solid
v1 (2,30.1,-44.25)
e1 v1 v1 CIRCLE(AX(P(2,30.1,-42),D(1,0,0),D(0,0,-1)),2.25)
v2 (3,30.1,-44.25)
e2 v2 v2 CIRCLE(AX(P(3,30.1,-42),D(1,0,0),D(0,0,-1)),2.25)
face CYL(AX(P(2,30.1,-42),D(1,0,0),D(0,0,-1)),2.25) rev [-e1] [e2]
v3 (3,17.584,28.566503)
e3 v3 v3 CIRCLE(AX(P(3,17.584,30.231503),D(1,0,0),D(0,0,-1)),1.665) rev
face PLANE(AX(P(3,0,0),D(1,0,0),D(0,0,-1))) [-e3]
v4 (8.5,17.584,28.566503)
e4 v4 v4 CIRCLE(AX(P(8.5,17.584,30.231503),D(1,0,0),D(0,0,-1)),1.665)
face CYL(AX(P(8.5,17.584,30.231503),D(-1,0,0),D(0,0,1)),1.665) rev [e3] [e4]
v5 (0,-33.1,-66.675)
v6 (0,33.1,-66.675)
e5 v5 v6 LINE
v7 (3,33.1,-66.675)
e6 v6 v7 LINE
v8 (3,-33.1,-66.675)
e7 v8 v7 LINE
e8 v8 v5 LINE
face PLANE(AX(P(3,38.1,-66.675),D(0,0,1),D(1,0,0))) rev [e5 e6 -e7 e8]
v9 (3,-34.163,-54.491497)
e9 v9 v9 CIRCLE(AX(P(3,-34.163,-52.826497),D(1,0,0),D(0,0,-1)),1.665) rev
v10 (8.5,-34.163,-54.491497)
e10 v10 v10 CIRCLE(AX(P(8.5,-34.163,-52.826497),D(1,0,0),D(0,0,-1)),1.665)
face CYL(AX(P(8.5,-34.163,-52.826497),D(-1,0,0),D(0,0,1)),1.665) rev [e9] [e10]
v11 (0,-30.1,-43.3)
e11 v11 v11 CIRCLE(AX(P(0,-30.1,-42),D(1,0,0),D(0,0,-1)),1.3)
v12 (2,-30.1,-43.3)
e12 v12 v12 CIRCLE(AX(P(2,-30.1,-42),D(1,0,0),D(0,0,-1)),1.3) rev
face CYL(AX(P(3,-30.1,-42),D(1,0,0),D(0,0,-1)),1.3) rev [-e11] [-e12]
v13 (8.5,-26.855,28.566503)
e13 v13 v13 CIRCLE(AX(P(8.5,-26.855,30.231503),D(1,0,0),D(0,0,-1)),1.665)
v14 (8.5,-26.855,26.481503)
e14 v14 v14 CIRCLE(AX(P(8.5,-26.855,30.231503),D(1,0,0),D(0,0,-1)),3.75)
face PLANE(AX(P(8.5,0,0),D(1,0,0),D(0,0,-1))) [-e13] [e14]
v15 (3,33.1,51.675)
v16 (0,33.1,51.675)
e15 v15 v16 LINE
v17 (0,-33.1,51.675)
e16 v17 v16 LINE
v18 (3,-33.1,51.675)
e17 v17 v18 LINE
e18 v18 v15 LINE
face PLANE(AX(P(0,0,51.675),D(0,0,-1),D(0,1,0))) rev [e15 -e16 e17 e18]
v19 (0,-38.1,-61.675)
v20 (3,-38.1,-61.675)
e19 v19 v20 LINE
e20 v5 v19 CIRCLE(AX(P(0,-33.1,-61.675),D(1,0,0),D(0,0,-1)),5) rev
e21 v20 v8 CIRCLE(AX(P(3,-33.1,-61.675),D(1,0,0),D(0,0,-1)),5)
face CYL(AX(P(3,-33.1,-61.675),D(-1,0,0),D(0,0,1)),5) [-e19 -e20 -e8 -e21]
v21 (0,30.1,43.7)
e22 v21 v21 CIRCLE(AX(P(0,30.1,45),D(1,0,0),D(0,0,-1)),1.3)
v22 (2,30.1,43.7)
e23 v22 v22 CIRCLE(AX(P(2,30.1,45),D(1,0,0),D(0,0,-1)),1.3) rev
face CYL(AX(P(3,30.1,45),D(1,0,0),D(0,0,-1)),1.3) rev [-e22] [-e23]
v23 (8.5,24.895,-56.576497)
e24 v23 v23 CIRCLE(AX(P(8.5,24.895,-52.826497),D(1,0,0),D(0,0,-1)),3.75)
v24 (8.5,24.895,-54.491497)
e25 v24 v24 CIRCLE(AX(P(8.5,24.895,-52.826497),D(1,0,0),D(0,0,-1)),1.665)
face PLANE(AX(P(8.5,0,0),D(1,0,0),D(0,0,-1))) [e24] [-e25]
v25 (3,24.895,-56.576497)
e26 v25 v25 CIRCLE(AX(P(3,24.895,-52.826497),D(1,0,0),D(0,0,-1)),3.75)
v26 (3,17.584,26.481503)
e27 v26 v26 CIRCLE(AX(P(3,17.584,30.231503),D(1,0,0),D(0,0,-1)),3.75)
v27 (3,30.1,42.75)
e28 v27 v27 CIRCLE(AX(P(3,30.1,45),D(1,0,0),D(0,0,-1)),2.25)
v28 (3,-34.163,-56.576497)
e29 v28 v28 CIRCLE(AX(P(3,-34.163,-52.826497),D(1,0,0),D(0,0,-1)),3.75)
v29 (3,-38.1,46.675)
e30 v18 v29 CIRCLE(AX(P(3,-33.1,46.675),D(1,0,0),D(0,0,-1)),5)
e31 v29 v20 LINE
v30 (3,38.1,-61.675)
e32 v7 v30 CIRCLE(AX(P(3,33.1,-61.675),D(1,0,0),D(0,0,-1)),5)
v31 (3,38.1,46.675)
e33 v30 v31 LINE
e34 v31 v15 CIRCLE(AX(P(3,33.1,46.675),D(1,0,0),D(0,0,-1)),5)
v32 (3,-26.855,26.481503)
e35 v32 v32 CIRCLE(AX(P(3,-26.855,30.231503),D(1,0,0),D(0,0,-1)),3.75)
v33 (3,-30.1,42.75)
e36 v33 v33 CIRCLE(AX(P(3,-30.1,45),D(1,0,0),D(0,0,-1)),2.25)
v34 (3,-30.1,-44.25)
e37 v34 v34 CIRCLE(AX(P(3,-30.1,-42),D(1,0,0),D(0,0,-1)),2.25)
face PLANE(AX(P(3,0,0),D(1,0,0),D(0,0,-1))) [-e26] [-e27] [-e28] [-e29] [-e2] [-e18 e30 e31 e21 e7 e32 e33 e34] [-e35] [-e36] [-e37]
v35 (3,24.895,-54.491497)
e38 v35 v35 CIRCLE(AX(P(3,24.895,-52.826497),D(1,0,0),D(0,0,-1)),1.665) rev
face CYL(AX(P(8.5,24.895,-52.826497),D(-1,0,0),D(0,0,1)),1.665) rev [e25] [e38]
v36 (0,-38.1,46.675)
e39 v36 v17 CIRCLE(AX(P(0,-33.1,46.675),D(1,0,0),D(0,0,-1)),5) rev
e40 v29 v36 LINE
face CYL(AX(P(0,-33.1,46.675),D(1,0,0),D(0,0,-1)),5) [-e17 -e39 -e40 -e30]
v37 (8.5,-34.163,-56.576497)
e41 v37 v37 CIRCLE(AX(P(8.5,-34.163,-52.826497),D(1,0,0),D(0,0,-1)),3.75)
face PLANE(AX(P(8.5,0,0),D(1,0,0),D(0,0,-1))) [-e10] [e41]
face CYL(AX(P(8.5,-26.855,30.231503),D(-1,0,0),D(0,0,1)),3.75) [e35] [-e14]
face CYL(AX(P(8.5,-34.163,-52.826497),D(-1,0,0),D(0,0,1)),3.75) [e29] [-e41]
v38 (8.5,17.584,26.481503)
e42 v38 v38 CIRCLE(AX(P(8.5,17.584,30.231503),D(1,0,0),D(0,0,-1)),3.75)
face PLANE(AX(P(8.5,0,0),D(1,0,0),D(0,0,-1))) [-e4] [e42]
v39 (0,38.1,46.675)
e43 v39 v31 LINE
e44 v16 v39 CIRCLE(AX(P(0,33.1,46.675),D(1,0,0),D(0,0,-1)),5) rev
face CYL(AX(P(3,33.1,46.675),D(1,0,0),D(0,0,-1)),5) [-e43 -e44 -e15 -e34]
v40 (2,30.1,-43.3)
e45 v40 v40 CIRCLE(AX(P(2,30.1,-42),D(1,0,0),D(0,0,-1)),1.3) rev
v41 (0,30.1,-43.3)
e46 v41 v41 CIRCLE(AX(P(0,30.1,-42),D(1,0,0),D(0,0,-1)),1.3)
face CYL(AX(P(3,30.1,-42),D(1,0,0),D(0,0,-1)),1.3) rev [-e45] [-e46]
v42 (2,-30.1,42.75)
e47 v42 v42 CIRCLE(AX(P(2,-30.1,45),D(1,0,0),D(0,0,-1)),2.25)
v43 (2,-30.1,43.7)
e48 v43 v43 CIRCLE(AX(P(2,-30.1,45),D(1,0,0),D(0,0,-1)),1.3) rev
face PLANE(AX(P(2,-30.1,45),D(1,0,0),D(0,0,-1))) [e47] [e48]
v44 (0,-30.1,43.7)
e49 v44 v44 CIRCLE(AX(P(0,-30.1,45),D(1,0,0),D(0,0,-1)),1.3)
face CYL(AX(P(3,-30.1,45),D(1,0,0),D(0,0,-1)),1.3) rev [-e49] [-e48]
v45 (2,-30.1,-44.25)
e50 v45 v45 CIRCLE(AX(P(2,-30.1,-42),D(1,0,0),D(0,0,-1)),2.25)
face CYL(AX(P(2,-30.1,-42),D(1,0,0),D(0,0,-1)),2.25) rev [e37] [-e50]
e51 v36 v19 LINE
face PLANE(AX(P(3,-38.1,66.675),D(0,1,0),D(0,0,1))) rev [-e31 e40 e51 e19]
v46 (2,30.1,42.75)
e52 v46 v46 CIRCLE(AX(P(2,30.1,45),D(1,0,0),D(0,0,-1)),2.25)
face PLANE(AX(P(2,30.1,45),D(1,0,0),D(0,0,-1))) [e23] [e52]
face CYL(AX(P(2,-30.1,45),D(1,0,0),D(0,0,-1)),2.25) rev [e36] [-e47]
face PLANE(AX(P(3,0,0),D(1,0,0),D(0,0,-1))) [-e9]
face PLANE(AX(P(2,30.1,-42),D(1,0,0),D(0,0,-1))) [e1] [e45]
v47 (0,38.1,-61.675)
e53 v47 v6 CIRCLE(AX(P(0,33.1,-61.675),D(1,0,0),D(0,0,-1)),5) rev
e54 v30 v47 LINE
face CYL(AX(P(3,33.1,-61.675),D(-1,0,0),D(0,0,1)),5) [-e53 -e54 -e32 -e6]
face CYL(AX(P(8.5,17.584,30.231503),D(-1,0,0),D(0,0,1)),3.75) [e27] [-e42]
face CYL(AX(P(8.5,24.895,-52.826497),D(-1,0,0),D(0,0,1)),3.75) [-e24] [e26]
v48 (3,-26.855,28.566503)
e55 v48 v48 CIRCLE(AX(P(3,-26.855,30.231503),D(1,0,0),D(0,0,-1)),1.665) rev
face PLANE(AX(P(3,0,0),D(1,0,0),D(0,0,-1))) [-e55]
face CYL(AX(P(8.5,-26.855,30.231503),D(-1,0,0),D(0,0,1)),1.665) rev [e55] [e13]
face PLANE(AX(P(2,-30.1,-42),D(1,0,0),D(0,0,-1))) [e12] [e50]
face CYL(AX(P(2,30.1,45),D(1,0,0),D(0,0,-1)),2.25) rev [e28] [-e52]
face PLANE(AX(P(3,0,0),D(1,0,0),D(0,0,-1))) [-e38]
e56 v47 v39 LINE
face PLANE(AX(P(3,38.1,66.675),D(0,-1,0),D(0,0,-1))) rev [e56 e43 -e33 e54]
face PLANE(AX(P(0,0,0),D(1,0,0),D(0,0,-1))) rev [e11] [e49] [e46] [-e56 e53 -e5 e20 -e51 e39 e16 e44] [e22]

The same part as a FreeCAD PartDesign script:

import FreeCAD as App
import Part
import Sketcher

V = App.Vector


def edges_at(feature, points):
    """Names of the edges that pass closest to the given points."""
    edges = feature.Shape.Edges
    near = lambda p: min(range(len(edges)), key=lambda i: edges[i].distToShape(Part.Vertex(*p))[0])
    return sorted({f"Edge{near(p) + 1}" for p in points})


def add_polygon(sketch, points):
    """Adds a closed chain of lines whose ends are joined by coincident constraints."""
    first, n = sketch.GeometryCount, len(points)
    for a, b in zip(points, points[1:] + points[:1]):
        sketch.addGeometry(Part.LineSegment(App.Vector(*a, 0), App.Vector(*b, 0)), False)
    for i in range(n):
        sketch.addConstraint(Sketcher.Constraint("Coincident", first + i, 2, first + (i + 1) % n, 1))

doc = App.newDocument("Part")
body = doc.addObject("PartDesign::Body", "Body")

# Sketch on YZ plane
sketch1 = body.newObject("Sketcher::SketchObject", "Sketch")
sketch1.AttachmentSupport = (doc.getObject("YZ_Plane"), [""])
sketch1.MapMode = "FlatFace"
add_polygon(sketch1, [(38, 67), (-38, 67), (-38, -67), (38, -67)])  # lines 0-3
sketch1.addConstraint([
    Sketcher.Constraint("Horizontal", 0),
    Sketcher.Constraint("Vertical", 1),
    Sketcher.Constraint("Horizontal", 2),
    Sketcher.Constraint("Vertical", 3),
    Sketcher.Constraint("Symmetric", 0, 2, 2, 2, -1, 1),
    Sketcher.Constraint("DistanceX", 0, 2, 0, 1, 76.2),
    Sketcher.Constraint("DistanceY", 1, 2, 1, 1, 133.35),
])
pad1 = body.newObject("PartDesign::Pad", "Pad")
pad1.Profile = sketch1
pad1.Length = 3

# Sketch on YZ plane
sketch2 = body.newObject("Sketcher::SketchObject", "Sketch001")
sketch2.AttachmentSupport = (doc.getObject("YZ_Plane"), [""])
sketch2.MapMode = "FlatFace"
sketch2.AttachmentOffset = App.Placement(V(0, 0, 3), App.Rotation())
sketch2.addGeometry([
    Part.Circle(V(-30.1, 45, 0), V(0, 0, 1), 1.3),
    Part.Circle(V(30.1, 45, 0), V(0, 0, 1), 1.3),
    Part.Circle(V(30.1, -42, 0), V(0, 0, 1), 1.3),
    Part.Circle(V(-30.1, -42, 0), V(0, 0, 1), 1.3),
], False)
sketch2.addConstraint([
    Sketcher.Constraint("Equal", 0, 1),
    Sketcher.Constraint("Equal", 1, 2),
    Sketcher.Constraint("Equal", 2, 3),
    Sketcher.Constraint("Symmetric", 0, 3, 1, 3, -2),
    Sketcher.Constraint("Symmetric", 2, 3, 3, 3, -2),
    Sketcher.Constraint("Vertical", 1, 3, 2, 3),
    Sketcher.Constraint("Diameter", 0, 2.6),
    Sketcher.Constraint("DistanceY", -1, 1, 0, 3, 45.0),
    Sketcher.Constraint("DistanceY", 2, 3, -1, 1, 42.0),
    Sketcher.Constraint("DistanceX", 0, 3, -1, 1, 30.1),
])
doc.recompute()
hole = body.newObject("PartDesign::Hole", "Hole")
hole.Profile = sketch2
hole.ThreadType = "None"
hole.Diameter = 2.6
hole.DepthType = "ThroughAll"

# Sketch on YZ plane
sketch3 = body.newObject("Sketcher::SketchObject", "Sketch002")
sketch3.AttachmentSupport = (doc.getObject("YZ_Plane"), [""])
sketch3.MapMode = "FlatFace"
sketch3.AttachmentOffset = App.Placement(V(0, 0, 3), App.Rotation())
sketch3.addGeometry([
    Part.Circle(V(-26.9, 30.2, 0), V(0, 0, 1), 3.8),  # 0
    Part.Circle(V(-26.9, 30.2, 0), V(0, 0, 1), 1.7),  # 1
    Part.Circle(V(17.6, 30.2, 0), V(0, 0, 1), 3.8),  # 2
    Part.Circle(V(17.6, 30.2, 0), V(0, 0, 1), 1.7),  # 3
    Part.Circle(V(24.9, -52.8, 0), V(0, 0, 1), 3.8),  # 4
    Part.Circle(V(24.9, -52.8, 0), V(0, 0, 1), 1.7),  # 5
    Part.Circle(V(-34.2, -52.8, 0), V(0, 0, 1), 3.8),  # 6
    Part.Circle(V(-34.2, -52.8, 0), V(0, 0, 1), 1.7),  # 7
], False)
sketch3.addConstraint([
    Sketcher.Constraint("Coincident", 1, 3, 0, 3),
    Sketcher.Constraint("Coincident", 3, 3, 2, 3),
    Sketcher.Constraint("Coincident", 5, 3, 4, 3),
    Sketcher.Constraint("Coincident", 7, 3, 6, 3),
    Sketcher.Constraint("Equal", 0, 2),
    Sketcher.Constraint("Equal", 1, 3),
    Sketcher.Constraint("Equal", 2, 4),
    Sketcher.Constraint("Equal", 3, 5),
    Sketcher.Constraint("Equal", 4, 6),
    Sketcher.Constraint("Equal", 5, 7),
    Sketcher.Constraint("Horizontal", 1, 3, 2, 3),
    Sketcher.Constraint("Horizontal", 5, 3, 6, 3),
    Sketcher.Constraint("Diameter", 0, 7.5),
    Sketcher.Constraint("Diameter", 1, 3.33),
    Sketcher.Constraint("DistanceX", 0, 3, 4, 3, 51.75),
    Sketcher.Constraint("DistanceX", 0, 3, -1, 1, 26.855),
    Sketcher.Constraint("DistanceX", -1, 1, 2, 3, 17.584),
    Sketcher.Constraint("DistanceX", 6, 3, -1, 1, 34.163),
    Sketcher.Constraint("DistanceY", 4, 3, 2, 3, 83.058),
    Sketcher.Constraint("DistanceY", -1, 1, 0, 3, 30.231503),
])
pad2 = body.newObject("PartDesign::Pad", "Pad001")
pad2.Profile = sketch3
pad2.Length = 5.5

# Sketch on YZ plane
sketch4 = body.newObject("Sketcher::SketchObject", "Sketch003")
sketch4.AttachmentSupport = (doc.getObject("YZ_Plane"), [""])
sketch4.MapMode = "FlatFace"
sketch4.AttachmentOffset = App.Placement(V(0, 0, 3), App.Rotation())
add_polygon(sketch4, [(-330, 52), (330, 52), (330, 635), (-330, 635)])  # lines 0-3
sketch4.addConstraint([
    Sketcher.Constraint("Horizontal", 0),
    Sketcher.Constraint("Vertical", 1),
    Sketcher.Constraint("Horizontal", 2),
    Sketcher.Constraint("Vertical", 3),
    Sketcher.Constraint("DistanceY", -1, 1, 0, 2, 51.675),
    Sketcher.Constraint("DistanceX", 0, 1, 0, 2, 659.236944),
    Sketcher.Constraint("DistanceY", 1, 1, 1, 2, 583.036944),
    Sketcher.Constraint("DistanceX", -1, 1, 0, 2, 329.618472),
])
pocket1 = body.newObject("PartDesign::Pocket", "Pocket")
pocket1.Profile = sketch4
pocket1.Type = "ThroughAll"
doc.recompute()

fillet = body.newObject("PartDesign::Fillet", "Fillet")
fillet.Base = (pocket1, edges_at(pocket1, [
    (1.5, -38.1, 51.675),
    (1.5, 38.1, 51.675),
    (1.5, -38.1, -66.675),
    (1.5, 38.1, -66.675),
]))
fillet.Radius = 5

# Sketch on YZ plane
sketch5 = body.newObject("Sketcher::SketchObject", "Sketch004")
sketch5.AttachmentSupport = (doc.getObject("YZ_Plane"), [""])
sketch5.MapMode = "FlatFace"
sketch5.AttachmentOffset = App.Placement(V(0, 0, 3), App.Rotation())
sketch5.addGeometry([
    Part.Circle(V(-30.1, 45, 0), V(0, 0, 1), 2.2),
    Part.Circle(V(30.1, 45, 0), V(0, 0, 1), 2.2),
    Part.Circle(V(30.1, -42, 0), V(0, 0, 1), 2.2),
    Part.Circle(V(-30.1, -42, 0), V(0, 0, 1), 2.2),
], False)
sketch5.addConstraint([
    Sketcher.Constraint("Equal", 0, 1),
    Sketcher.Constraint("Equal", 1, 2),
    Sketcher.Constraint("Equal", 2, 3),
    Sketcher.Constraint("Symmetric", 0, 3, 1, 3, -2),
    Sketcher.Constraint("Symmetric", 2, 3, 3, 3, -2),
    Sketcher.Constraint("Vertical", 1, 3, 2, 3),
    Sketcher.Constraint("Diameter", 0, 4.5),
    Sketcher.Constraint("DistanceY", -1, 1, 0, 3, 45.0),
    Sketcher.Constraint("DistanceY", 2, 3, -1, 1, 42.0),
    Sketcher.Constraint("DistanceX", 0, 3, -1, 1, 30.1),
])
pocket2 = body.newObject("PartDesign::Pocket", "Pocket001")
pocket2.Profile = sketch5
pocket2.Length = 1

doc.recompute()
